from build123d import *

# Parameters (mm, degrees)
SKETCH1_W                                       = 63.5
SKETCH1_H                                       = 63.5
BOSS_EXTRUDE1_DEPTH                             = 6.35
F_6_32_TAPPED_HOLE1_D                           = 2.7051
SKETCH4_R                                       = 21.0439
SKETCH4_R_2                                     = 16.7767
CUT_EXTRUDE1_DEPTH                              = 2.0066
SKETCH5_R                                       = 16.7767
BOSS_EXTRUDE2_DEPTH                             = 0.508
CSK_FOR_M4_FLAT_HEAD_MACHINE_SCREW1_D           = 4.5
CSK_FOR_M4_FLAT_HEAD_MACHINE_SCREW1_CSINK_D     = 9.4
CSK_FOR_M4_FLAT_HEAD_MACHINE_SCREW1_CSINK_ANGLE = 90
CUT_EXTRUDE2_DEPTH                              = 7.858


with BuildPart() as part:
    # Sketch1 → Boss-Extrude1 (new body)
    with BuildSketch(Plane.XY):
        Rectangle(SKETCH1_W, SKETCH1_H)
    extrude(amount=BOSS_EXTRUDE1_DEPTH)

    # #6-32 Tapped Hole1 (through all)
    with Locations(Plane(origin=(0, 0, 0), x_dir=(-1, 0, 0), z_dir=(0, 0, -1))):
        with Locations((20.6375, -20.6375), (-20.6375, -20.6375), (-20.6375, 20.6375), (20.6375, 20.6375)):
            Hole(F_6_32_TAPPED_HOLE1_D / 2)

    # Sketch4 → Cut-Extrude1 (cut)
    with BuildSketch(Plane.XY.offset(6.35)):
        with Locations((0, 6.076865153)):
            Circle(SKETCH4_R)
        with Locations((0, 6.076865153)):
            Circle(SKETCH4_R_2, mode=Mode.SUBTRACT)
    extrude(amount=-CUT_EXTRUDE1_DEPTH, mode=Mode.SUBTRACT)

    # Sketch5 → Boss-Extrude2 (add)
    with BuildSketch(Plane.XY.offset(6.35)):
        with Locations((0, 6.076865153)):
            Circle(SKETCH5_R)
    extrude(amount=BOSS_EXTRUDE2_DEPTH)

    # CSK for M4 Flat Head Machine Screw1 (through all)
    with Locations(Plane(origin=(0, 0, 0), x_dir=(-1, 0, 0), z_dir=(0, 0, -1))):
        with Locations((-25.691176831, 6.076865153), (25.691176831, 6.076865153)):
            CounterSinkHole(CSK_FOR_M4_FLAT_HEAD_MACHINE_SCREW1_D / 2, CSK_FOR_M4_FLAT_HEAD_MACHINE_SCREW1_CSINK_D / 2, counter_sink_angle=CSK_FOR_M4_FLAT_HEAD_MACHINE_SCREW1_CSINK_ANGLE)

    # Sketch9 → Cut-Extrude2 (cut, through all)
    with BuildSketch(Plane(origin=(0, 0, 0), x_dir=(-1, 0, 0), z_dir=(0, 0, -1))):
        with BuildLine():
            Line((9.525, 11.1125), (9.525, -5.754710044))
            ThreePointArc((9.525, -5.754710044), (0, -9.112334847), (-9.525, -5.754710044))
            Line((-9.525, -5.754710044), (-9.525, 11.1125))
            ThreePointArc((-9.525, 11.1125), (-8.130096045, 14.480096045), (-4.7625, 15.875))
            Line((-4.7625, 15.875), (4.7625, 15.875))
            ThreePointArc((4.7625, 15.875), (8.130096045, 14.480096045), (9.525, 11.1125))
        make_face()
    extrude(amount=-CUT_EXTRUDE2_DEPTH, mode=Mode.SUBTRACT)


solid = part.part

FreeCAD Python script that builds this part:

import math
import FreeCAD as App
import Part
import Sketcher

V = App.Vector
Q = App.Units.Quantity


def add_polygon(sketch, points):
    """Adds a closed chain of lines whose ends are joined by coincident constraints."""
    first, n = sketch.GeometryCount, len(points)
    for a, b in zip(points, points[1:] + points[:1]):
        sketch.addGeometry(Part.LineSegment(App.Vector(*a, 0), App.Vector(*b, 0)), False)
    for i in range(n):
        sketch.addConstraint(Sketcher.Constraint("Coincident", first + i, 2, first + (i + 1) % n, 1))

doc = App.newDocument("Part")
body = doc.addObject("PartDesign::Body", "Body")

sketch1 = body.newObject("Sketcher::SketchObject", "Sketch")
sketch1.AttachmentSupport = (doc.getObject("XY_Plane"), [""])
sketch1.MapMode = "FlatFace"
add_polygon(sketch1, [(-32, 32), (-32, -32), (32, -32), (32, 32)])
sketch1.addConstraint(Sketcher.Constraint("Vertical", 0))
sketch1.addConstraint(Sketcher.Constraint("Horizontal", 1))
sketch1.addConstraint(Sketcher.Constraint("Vertical", 2))
sketch1.addConstraint(Sketcher.Constraint("Horizontal", 3))
sketch1.addConstraint(Sketcher.Constraint("Symmetric", 0, 2, 2, 2, -1, 1))
sketch1.addConstraint(Sketcher.Constraint("Equal", 3, 0))
sketch1.addConstraint(Sketcher.Constraint("DistanceX", 1, 1, 1, 2, Q("2.5 in")))
pad1 = body.newObject("PartDesign::Pad", "Pad")
pad1.Profile = sketch1
pad1.Length = Q("0.25 in")

sketch2 = body.newObject("Sketcher::SketchObject", "Sketch001")
sketch2.AttachmentSupport = (doc.getObject("XY_Plane"), [""])
sketch2.MapMode = "FlatFace"
sketch2.addGeometry(Part.Circle(V(-20.6, -20.6, 0), V(0, 0, 1), 1.4), False)
sketch2.addGeometry(Part.Circle(V(20.6, -20.6, 0), V(0, 0, 1), 1.4), False)
sketch2.addGeometry(Part.Circle(V(20.6, 20.6, 0), V(0, 0, 1), 1.4), False)
sketch2.addGeometry(Part.Circle(V(-20.6, 20.6, 0), V(0, 0, 1), 1.4), False)
sketch2.addConstraint(Sketcher.Constraint("Equal", 0, 1))
sketch2.addConstraint(Sketcher.Constraint("Equal", 1, 2))
sketch2.addConstraint(Sketcher.Constraint("Equal", 2, 3))
sketch2.addConstraint(Sketcher.Constraint("Symmetric", 0, 3, 2, 3, -1, 1))
sketch2.addConstraint(Sketcher.Constraint("Symmetric", 1, 3, 3, 3, -1, 1))
sketch2.addConstraint(Sketcher.Constraint("Symmetric", 0, 3, 1, 3, -2))
sketch2.addConstraint(Sketcher.Constraint("Diameter", 0, Q("0.1065 in")))
sketch2.addConstraint(Sketcher.Constraint("DistanceX", 0, 3, -1, 1, Q("0.8125 in")))
sketch2.addConstraint(Sketcher.Constraint("DistanceY", 0, 3, -1, 1, Q("0.8125 in")))
doc.recompute()
hole = body.newObject("PartDesign::Hole", "Hole")
hole.Profile = sketch2
hole.ThreadType = "None"
hole.Diameter = Q("0.1065 in")
hole.DepthType = "ThroughAll"
hole.Reversed = True

sketch3 = body.newObject("Sketcher::SketchObject", "Sketch002")
sketch3.AttachmentSupport = (doc.getObject("XY_Plane"), [""])
sketch3.MapMode = "FlatFace"
sketch3.AttachmentOffset = App.Placement(V(0, 0, 0.25 * 25.4), App.Rotation())
sketch3.addGeometry(Part.Circle(V(0, 6, 0), V(0, 0, 1), 21), False)
sketch3.addGeometry(Part.Circle(V(0, 6, 0), V(0, 0, 1), 17), False)
sketch3.addConstraint(Sketcher.Constraint("Coincident", 1, 3, 0, 3))
sketch3.addConstraint(Sketcher.Constraint("PointOnObject", 0, 3, -2))
sketch3.addConstraint(Sketcher.Constraint("Diameter", 0, Q("1.657 in")))
sketch3.addConstraint(Sketcher.Constraint("Diameter", 1, Q("1.321 in")))
sketch3.addConstraint(Sketcher.Constraint("DistanceY", -1, 1, 0, 3, Q("6.076865 mm")))
pocket1 = body.newObject("PartDesign::Pocket", "Pocket")
pocket1.Profile = sketch3
pocket1.Length = Q("0.079 in")

sketch4 = body.newObject("Sketcher::SketchObject", "Sketch003")
sketch4.AttachmentSupport = (doc.getObject("XY_Plane"), [""])
sketch4.MapMode = "FlatFace"
sketch4.AttachmentOffset = App.Placement(V(0, 0, 0.25 * 25.4), App.Rotation())
sketch4.addGeometry(Part.Circle(V(0, 6, 0), V(0, 0, 1), 17), False)
sketch4.addConstraint(Sketcher.Constraint("PointOnObject", 0, 3, -2))
sketch4.addConstraint(Sketcher.Constraint("Diameter", 0, Q("1.321 in")))
sketch4.addConstraint(Sketcher.Constraint("DistanceY", -1, 1, 0, 3, Q("6.076865 mm")))
pad2 = body.newObject("PartDesign::Pad", "Pad001")
pad2.Profile = sketch4
pad2.Length = Q("0.02 in")

sketch5 = body.newObject("Sketcher::SketchObject", "Sketch004")
sketch5.AttachmentSupport = (doc.getObject("XY_Plane"), [""])
sketch5.MapMode = "FlatFace"
sketch5.addGeometry(Part.Circle(V(25.7, 6.1, 0), V(0, 0, 1), 2.2), False)
sketch5.addGeometry(Part.Circle(V(-25.7, 6.1, 0), V(0, 0, 1), 2.2), False)
sketch5.addConstraint(Sketcher.Constraint("Equal", 0, 1))
sketch5.addConstraint(Sketcher.Constraint("Symmetric", 0, 3, 1, 3, -2))
sketch5.addConstraint(Sketcher.Constraint("Diameter", 0, Q("4.5 mm")))
sketch5.addConstraint(Sketcher.Constraint("DistanceX", -1, 1, 0, 3, Q("25.691177 mm")))
sketch5.addConstraint(Sketcher.Constraint("DistanceY", -1, 1, 0, 3, Q("6.076865 mm")))
doc.recompute()
hole2 = body.newObject("PartDesign::Hole", "Hole001")
hole2.Profile = sketch5
hole2.ThreadType = "None"
hole2.Diameter = 4.5
hole2.DepthType = "ThroughAll"
hole2.HoleCutType = "Countersink"
hole2.HoleCutDiameter = 9.4
hole2.HoleCutCountersinkAngle = 90
hole2.Reversed = True

sketch6 = body.newObject("Sketcher::SketchObject", "Sketch005")
sketch6.AttachmentSupport = (doc.getObject("XY_Plane"), [""])
sketch6.MapMode = "FlatFace"
sketch6.addGeometry(Part.LineSegment(V(-9.5, -5.8, 0), V(-9.5, 11.1, 0)), False)
sketch6.addGeometry(Part.ArcOfCircle(Part.Circle(V(-4.8, 11.1, 0), V(0, 0, 1), 4.8), math.radians(90), math.radians(180)), False)
sketch6.addGeometry(Part.LineSegment(V(-4.8, 15.9, 0), V(4.8, 15.9, 0)), False)
sketch6.addGeometry(Part.ArcOfCircle(Part.Circle(V(4.8, 11.1, 0), V(0, 0, 1), 4.8), math.radians(0), math.radians(90)), False)
sketch6.addGeometry(Part.LineSegment(V(9.5, 11.1, 0), V(9.5, -5.8, 0)), False)
sketch6.addGeometry(Part.ArcOfCircle(Part.Circle(V(0, 6.1, 0), V(0, 0, 1), 15.2), math.radians(-129), math.radians(-51)), False)
sketch6.addConstraint(Sketcher.Constraint("Tangent", 0, 2, 1, 2))
sketch6.addConstraint(Sketcher.Constraint("Tangent", 1, 1, 2, 1))
sketch6.addConstraint(Sketcher.Constraint("Tangent", 2, 2, 3, 2))
sketch6.addConstraint(Sketcher.Constraint("Tangent", 3, 1, 4, 1))
sketch6.addConstraint(Sketcher.Constraint("Coincident", 4, 2, 5, 2))
sketch6.addConstraint(Sketcher.Constraint("Coincident", 5, 1, 0, 1))
sketch6.addConstraint(Sketcher.Constraint("Vertical", 0))
sketch6.addConstraint(Sketcher.Constraint("Horizontal", 2))
sketch6.addConstraint(Sketcher.Constraint("Vertical", 4))
sketch6.addConstraint(Sketcher.Constraint("Equal", 1, 3))
sketch6.addConstraint(Sketcher.Constraint("Symmetric", 4, 2, 5, 1, -2))
sketch6.addConstraint(Sketcher.Constraint("Radius", 1, Q("0.1875 in")))
sketch6.addConstraint(Sketcher.Constraint("Radius", 5, Q("0.598 in")))
sketch6.addConstraint(Sketcher.Constraint("DistanceX", 2, 1, 2, 2, Q("0.375 in")))
sketch6.addConstraint(Sketcher.Constraint("DistanceY", -1, 1, 1, 3, Q("0.4375 in")))
sketch6.addConstraint(Sketcher.Constraint("DistanceY", 0, 1, 0, 2, Q("16.86721 mm")))
pocket2 = body.newObject("PartDesign::Pocket", "Pocket001")
pocket2.Profile = sketch6
pocket2.Type = "ThroughAll"
pocket2.Reversed = True

doc.recompute()
